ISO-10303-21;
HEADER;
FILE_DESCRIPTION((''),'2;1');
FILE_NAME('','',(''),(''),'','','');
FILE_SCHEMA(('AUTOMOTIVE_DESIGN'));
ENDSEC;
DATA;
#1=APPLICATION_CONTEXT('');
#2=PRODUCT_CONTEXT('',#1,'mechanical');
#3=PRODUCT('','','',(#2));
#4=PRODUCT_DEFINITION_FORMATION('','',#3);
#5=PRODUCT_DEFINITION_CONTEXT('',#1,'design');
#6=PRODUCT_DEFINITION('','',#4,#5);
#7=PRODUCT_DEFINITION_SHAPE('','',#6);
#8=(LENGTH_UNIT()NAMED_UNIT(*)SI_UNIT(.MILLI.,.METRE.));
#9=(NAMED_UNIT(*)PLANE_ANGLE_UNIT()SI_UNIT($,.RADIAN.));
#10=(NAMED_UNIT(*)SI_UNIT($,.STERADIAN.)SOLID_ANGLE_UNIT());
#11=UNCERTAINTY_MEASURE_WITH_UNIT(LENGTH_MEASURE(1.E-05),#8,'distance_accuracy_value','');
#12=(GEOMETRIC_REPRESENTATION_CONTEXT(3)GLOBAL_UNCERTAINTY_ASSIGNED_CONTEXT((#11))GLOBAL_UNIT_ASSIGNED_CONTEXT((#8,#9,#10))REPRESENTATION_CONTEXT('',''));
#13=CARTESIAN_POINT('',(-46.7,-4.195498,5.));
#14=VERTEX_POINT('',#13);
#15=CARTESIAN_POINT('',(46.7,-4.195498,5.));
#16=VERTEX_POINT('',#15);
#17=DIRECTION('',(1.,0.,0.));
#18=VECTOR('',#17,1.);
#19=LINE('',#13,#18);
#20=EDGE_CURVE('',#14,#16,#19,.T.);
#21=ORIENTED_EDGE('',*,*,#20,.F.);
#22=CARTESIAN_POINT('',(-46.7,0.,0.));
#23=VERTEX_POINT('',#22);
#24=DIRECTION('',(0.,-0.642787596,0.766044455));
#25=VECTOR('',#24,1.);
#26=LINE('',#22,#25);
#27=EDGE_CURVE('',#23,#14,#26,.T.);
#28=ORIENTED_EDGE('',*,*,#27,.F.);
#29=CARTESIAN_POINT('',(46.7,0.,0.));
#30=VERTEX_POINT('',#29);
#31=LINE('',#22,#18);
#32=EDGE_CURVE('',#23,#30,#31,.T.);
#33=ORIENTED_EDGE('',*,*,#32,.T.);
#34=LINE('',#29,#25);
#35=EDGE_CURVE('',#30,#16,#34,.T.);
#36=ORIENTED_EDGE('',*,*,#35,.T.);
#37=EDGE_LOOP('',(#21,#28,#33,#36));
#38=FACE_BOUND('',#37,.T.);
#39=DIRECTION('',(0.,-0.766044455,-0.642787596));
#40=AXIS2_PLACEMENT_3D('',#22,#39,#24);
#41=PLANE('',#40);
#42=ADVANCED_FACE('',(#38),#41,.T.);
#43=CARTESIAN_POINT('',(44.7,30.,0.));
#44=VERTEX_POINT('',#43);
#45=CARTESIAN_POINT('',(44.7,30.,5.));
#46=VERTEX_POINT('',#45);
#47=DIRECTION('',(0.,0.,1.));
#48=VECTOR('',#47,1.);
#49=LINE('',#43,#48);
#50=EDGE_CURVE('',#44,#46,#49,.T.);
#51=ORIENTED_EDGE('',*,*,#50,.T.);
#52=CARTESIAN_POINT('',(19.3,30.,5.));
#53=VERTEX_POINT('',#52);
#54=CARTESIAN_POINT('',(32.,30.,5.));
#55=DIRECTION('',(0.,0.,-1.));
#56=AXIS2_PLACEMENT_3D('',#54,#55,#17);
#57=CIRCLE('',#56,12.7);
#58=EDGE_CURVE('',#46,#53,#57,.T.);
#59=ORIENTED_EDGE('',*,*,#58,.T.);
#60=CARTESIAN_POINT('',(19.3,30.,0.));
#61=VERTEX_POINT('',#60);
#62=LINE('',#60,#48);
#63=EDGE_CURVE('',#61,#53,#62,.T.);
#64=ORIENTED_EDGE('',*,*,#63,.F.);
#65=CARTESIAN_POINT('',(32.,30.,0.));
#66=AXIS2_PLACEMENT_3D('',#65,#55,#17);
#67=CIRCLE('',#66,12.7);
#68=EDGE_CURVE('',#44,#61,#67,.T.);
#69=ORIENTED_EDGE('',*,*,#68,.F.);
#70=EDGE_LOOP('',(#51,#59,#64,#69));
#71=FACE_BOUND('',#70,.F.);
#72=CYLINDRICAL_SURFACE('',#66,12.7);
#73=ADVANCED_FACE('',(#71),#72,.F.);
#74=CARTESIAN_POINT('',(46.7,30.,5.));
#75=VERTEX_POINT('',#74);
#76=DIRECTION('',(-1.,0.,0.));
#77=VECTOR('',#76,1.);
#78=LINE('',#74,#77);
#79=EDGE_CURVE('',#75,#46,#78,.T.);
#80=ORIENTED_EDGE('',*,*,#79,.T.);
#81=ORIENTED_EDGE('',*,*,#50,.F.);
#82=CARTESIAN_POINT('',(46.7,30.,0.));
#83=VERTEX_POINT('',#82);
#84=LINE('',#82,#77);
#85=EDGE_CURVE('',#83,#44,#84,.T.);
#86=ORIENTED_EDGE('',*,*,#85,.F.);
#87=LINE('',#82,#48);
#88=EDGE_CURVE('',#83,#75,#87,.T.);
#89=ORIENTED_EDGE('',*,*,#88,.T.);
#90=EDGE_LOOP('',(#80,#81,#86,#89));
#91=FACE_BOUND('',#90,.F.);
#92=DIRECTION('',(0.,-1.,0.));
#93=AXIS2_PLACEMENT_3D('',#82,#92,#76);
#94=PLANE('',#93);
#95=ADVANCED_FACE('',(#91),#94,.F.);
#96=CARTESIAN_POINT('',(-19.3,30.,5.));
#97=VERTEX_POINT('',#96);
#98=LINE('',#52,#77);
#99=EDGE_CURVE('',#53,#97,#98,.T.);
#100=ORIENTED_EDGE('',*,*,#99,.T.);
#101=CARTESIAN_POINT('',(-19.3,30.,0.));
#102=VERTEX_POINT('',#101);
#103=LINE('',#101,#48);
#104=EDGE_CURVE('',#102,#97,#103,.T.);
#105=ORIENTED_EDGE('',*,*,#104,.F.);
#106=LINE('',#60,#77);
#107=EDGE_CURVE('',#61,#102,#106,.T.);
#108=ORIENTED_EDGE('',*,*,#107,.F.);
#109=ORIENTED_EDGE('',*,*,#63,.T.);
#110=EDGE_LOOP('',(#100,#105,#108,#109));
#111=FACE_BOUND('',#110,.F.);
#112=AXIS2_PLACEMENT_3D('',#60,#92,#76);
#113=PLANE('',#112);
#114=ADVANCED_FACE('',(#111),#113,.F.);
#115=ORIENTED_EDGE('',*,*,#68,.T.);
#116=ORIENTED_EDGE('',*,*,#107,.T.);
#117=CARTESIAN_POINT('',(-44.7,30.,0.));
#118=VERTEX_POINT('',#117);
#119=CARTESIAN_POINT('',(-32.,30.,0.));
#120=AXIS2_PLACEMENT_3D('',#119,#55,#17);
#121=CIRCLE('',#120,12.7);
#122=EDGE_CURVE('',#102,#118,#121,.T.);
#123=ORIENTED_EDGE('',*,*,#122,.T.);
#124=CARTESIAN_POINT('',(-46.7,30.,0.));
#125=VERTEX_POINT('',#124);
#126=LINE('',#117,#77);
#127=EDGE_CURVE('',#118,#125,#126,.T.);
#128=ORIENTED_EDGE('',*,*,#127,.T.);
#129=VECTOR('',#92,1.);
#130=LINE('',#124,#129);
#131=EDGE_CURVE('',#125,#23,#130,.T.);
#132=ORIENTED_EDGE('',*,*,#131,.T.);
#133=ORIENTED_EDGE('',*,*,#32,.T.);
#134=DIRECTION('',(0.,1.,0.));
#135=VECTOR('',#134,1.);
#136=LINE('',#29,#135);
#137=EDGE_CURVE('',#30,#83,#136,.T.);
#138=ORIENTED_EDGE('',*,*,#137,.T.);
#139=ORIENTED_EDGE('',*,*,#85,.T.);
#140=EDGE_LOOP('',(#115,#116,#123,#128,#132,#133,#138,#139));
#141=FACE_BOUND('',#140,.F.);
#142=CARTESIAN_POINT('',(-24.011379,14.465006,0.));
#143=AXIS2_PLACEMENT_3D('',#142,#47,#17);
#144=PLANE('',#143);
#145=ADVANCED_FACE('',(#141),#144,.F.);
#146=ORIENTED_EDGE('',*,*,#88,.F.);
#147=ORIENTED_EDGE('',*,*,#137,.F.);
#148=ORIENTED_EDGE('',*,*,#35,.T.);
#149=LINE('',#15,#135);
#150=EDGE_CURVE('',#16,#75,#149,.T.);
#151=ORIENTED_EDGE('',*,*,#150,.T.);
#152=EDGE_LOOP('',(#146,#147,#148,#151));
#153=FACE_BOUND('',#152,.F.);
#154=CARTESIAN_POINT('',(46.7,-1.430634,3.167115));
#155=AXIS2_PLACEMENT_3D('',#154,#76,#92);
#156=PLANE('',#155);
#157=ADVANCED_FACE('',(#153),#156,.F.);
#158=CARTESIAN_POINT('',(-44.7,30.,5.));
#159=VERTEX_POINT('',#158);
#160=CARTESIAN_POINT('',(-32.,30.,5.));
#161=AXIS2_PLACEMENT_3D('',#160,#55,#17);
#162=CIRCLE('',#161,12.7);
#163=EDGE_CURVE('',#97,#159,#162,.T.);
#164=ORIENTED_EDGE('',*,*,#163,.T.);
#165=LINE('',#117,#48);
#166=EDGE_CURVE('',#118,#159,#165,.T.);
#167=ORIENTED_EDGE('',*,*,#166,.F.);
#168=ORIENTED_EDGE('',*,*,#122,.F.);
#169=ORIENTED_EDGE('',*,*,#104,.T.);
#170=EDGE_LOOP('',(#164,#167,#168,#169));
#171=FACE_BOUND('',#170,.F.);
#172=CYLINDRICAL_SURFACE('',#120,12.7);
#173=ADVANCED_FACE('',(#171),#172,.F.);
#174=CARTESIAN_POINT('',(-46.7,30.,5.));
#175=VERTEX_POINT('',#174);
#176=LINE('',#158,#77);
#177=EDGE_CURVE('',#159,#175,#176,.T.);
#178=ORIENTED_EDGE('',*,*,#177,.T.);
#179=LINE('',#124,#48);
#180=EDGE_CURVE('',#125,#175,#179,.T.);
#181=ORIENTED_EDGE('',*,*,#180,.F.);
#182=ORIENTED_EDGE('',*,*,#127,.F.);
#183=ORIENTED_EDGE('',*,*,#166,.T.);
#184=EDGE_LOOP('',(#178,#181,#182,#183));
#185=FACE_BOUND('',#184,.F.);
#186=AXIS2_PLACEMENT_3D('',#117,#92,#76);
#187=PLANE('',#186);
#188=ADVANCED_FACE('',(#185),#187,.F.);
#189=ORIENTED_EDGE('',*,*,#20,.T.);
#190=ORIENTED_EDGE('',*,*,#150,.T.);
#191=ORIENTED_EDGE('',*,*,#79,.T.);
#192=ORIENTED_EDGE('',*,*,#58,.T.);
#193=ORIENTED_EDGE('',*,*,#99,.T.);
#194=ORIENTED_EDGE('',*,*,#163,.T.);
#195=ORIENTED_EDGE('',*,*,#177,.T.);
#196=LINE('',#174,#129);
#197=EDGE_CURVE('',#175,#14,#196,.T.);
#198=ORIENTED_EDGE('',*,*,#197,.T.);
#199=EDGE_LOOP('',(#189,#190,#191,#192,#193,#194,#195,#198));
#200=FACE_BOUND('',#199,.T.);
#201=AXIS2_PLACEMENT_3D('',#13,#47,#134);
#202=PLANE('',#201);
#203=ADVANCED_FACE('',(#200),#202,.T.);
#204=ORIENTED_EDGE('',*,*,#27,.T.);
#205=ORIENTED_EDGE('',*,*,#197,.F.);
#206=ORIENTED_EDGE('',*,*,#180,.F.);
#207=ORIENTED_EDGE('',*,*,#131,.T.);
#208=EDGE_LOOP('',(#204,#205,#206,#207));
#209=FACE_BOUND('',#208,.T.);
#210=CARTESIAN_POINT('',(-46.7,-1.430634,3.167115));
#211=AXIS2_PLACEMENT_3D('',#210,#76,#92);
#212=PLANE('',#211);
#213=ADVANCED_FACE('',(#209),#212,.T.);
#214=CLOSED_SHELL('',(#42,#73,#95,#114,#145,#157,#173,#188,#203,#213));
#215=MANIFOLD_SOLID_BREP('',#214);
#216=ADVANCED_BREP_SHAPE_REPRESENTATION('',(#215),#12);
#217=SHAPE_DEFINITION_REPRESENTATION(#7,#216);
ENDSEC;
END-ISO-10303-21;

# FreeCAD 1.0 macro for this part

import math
import FreeCAD as App
import Part
import Sketcher

V = App.Vector
Q = App.Units.Quantity


def add_polygon(sketch, points):
    """Adds a closed chain of lines whose ends are joined by coincident constraints."""
    first, n = sketch.GeometryCount, len(points)
    for a, b in zip(points, points[1:] + points[:1]):
        sketch.addGeometry(Part.LineSegment(App.Vector(*a, 0), App.Vector(*b, 0)), False)
    for i in range(n):
        sketch.addConstraint(Sketcher.Constraint("Coincident", first + i, 2, first + (i + 1) % n, 1))

doc = App.newDocument("Part")
params = doc.addObject("Spreadsheet::Sheet", "Params")
for row, (alias, value) in enumerate([
    ("sketch1_radius", "12.7 mm"),
    ("sketch1_width", "2 mm"),
    ("sketch1_height", "30 mm"),
    ("sketch1_width2", "93.4 mm"),
    ("pad1_length", "5 mm"),
    ("sketch2_height", "5 mm"),
    ("pad2_length", "93.4 mm"),
], start=1):
    params.set(f"A{row}", alias)
    params.set(f"B{row}", "=" + value)
    params.setAlias(f"B{row}", alias)

body = doc.addObject("PartDesign::Body", "Body")

# Sketch on XY plane
sketch1 = doc.addObject("Sketcher::SketchObject", "Sketch")
body.addObject(sketch1)
sketch1.AttachmentSupport = (doc.XY_Plane, [""])
sketch1.MapMode = "FlatFace"
sketch1.addGeometry(Part.LineSegment(V(-46.7, 0, 0), V(46.7, 0, 0)), False)
sketch1.addGeometry(Part.LineSegment(V(46.7, 0, 0), V(46.7, 30, 0)), False)
sketch1.addGeometry(Part.LineSegment(V(46.7, 30, 0), V(44.7, 30, 0)), False)
sketch1.addGeometry(Part.ArcOfCircle(Part.Circle(V(32, 30, 0), V(0, 0, 1), 12.7), math.radians(180), math.radians(360)), False)
sketch1.addGeometry(Part.LineSegment(V(19.3, 30, 0), V(-19.3, 30, 0)), False)
sketch1.addGeometry(Part.ArcOfCircle(Part.Circle(V(-32, 30, 0), V(0, 0, 1), 12.7), math.radians(180), math.radians(360)), False)
sketch1.addGeometry(Part.LineSegment(V(-44.7, 30, 0), V(-46.7, 30, 0)), False)
sketch1.addGeometry(Part.LineSegment(V(-46.7, 30, 0), V(-46.7, 0, 0)), False)
sketch1.addConstraint(Sketcher.Constraint("Coincident", 0, 2, 1, 1))
sketch1.addConstraint(Sketcher.Constraint("Coincident", 1, 2, 2, 1))
sketch1.addConstraint(Sketcher.Constraint("Coincident", 2, 2, 3, 2))
sketch1.addConstraint(Sketcher.Constraint("Coincident", 3, 1, 4, 1))
sketch1.addConstraint(Sketcher.Constraint("Coincident", 4, 2, 5, 2))
sketch1.addConstraint(Sketcher.Constraint("Coincident", 5, 1, 6, 1))
sketch1.addConstraint(Sketcher.Constraint("Coincident", 6, 2, 7, 1))
sketch1.addConstraint(Sketcher.Constraint("Coincident", 7, 2, 0, 1))
sketch1.addConstraint(Sketcher.Constraint("Horizontal", 0))
sketch1.addConstraint(Sketcher.Constraint("Vertical", 1))
sketch1.addConstraint(Sketcher.Constraint("Horizontal", 2))
sketch1.addConstraint(Sketcher.Constraint("Horizontal", 4))
sketch1.addConstraint(Sketcher.Constraint("Horizontal", 6))
sketch1.addConstraint(Sketcher.Constraint("Vertical", 7))
sketch1.addConstraint(Sketcher.Constraint("Equal", 3, 5))
sketch1.addConstraint(Sketcher.Constraint("Symmetric", 0, 2, 7, 2, -1, 1))
sketch1.addConstraint(Sketcher.Constraint("Symmetric", 3, 3, 5, 3, -2))
sketch1.addConstraint(Sketcher.Constraint("Horizontal", 5, 3, 1, 2))
sketch1.addConstraint(Sketcher.Constraint("Horizontal", 2, 2, 3, 1))
sketch1.addConstraint(Sketcher.Constraint("Horizontal", 4, 2, 5, 1))
sketch1.addConstraint(Sketcher.Constraint("Radius", 3, 12.7))
sketch1.addConstraint(Sketcher.Constraint("DistanceX", 2, 2, 2, 1, 2.0))
sketch1.addConstraint(Sketcher.Constraint("DistanceY", 1, 1, 1, 2, 30.0))
sketch1.addConstraint(Sketcher.Constraint("DistanceX", 0, 1, 0, 2, 93.4))
sketch1.setExpression("Constraints[20]", "Params.sketch1_radius")
sketch1.setExpression("Constraints[21]", "Params.sketch1_width")
sketch1.setExpression("Constraints[22]", "Params.sketch1_height")
sketch1.setExpression("Constraints[23]", "Params.sketch1_width2")
pad1 = doc.addObject("PartDesign::Pad", "Pad")
body.addObject(pad1)
pad1.Profile = sketch1
pad1.setExpression("Length", "Params.pad1_length")

# Sketch on YZ plane
sketch2 = doc.addObject("Sketcher::SketchObject", "Sketch001")
body.addObject(sketch2)
sketch2.AttachmentSupport = (doc.YZ_Plane, [""])
sketch2.MapMode = "FlatFace"
sketch2.AttachmentOffset = App.Placement(V(0, 0, -46.7), App.Rotation())
add_polygon(sketch2, [(0, 5), (0, 0), (-4.2, 5)])  # lines 0-2
sketch2.addConstraint(Sketcher.Constraint("Vertical", 0))
sketch2.addConstraint(Sketcher.Constraint("Horizontal", 2))
sketch2.addConstraint(Sketcher.Constraint("Coincident", 0, 2, -1, 1))
sketch2.addConstraint(Sketcher.Constraint("DistanceY", 0, 2, 0, 1, 5.0))
sketch2.addConstraint(Sketcher.Constraint("Angle", 1, Q("129.999999 deg")))
sketch2.setExpression("Constraints[6]", "Params.sketch2_height")
pad2 = doc.addObject("PartDesign::Pad", "Pad001")
body.addObject(pad2)
pad2.Profile = sketch2
pad2.setExpression("Length", "Params.pad2_length")

doc.recompute()
